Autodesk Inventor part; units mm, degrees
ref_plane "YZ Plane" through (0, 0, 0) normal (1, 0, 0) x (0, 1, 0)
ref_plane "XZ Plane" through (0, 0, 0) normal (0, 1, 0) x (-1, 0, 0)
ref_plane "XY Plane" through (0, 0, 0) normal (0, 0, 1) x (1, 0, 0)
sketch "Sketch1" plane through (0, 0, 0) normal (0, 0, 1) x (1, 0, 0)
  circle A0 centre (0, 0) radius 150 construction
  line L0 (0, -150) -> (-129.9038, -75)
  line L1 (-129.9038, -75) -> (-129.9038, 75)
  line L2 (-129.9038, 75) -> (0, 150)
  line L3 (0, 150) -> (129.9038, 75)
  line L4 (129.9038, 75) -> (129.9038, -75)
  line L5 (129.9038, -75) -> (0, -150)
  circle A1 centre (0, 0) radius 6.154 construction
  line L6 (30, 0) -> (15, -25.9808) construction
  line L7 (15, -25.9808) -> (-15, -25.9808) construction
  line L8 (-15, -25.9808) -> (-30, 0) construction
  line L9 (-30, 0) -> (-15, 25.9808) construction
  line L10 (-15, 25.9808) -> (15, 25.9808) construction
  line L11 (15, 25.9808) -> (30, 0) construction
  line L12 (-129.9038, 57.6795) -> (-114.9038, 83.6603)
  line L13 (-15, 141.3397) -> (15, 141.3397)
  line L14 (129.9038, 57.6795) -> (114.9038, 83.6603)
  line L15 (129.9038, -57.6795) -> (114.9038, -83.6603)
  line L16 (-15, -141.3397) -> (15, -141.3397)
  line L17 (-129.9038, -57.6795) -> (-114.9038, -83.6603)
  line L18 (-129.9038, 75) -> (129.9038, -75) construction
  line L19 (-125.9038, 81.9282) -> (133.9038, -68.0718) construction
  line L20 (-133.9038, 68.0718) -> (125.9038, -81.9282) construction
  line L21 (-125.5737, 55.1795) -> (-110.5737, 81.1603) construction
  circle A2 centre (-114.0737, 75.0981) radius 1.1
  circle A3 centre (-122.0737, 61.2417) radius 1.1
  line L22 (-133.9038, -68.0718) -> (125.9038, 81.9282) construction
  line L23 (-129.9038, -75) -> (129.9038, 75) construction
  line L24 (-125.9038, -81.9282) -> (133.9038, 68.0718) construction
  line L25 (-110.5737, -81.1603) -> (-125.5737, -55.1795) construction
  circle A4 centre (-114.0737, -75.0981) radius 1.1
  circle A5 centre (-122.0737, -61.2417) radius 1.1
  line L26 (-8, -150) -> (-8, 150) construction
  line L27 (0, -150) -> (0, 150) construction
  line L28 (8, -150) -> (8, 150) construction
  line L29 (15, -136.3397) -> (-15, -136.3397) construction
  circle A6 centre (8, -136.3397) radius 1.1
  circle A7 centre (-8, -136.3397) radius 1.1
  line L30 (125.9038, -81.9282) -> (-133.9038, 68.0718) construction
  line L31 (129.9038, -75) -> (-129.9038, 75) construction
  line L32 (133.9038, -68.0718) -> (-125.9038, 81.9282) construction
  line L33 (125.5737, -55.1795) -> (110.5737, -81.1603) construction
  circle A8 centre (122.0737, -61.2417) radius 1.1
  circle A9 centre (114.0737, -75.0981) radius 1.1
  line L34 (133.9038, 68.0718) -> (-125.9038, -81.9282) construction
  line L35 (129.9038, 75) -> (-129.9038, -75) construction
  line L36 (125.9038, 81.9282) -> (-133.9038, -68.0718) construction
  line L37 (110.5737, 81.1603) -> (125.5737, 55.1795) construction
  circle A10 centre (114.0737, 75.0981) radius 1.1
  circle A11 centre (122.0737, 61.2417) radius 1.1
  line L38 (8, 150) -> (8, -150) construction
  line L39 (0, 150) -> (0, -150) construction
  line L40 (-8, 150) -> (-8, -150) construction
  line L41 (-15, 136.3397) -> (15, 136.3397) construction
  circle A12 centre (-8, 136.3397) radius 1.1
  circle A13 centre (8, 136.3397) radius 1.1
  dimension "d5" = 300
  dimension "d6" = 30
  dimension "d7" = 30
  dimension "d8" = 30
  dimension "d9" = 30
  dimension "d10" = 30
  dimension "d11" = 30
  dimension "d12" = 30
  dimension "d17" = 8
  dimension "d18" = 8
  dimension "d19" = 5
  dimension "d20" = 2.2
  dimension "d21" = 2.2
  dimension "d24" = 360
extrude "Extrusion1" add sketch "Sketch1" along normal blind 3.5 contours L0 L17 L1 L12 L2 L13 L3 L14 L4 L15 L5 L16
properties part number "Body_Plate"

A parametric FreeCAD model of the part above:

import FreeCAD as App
import Part
import Sketcher

V = App.Vector
Q = App.Units.Quantity


def add_polygon(sketch, points):
    """Adds a closed chain of lines whose ends are joined by coincident constraints."""
    first, n = sketch.GeometryCount, len(points)
    for a, b in zip(points, points[1:] + points[:1]):
        sketch.addGeometry(Part.LineSegment(App.Vector(*a, 0), App.Vector(*b, 0)), False)
    for i in range(n):
        sketch.addConstraint(Sketcher.Constraint("Coincident", first + i, 2, first + (i + 1) % n, 1))

doc = App.newDocument("Part")
body = doc.addObject("PartDesign::Body", "Body")

sketch1 = body.newObject("Sketcher::SketchObject", "Sketch")
sketch1.AttachmentSupport = (doc.getObject("XY_Plane"), [""])
sketch1.MapMode = "FlatFace"
add_polygon(sketch1, [(-114.9, -83.7), (-15, -141.3), (15, -141.3), (114.9, -83.7), (129.9, -57.7), (129.9, 57.7), (114.9, 83.7), (15, 141.3), (-15, 141.3), (-114.9, 83.7), (-129.9, 57.7), (-129.9, -57.7)])
sketch1.addGeometry(Part.Circle(V(-114.1, -75.1, 0), V(0, 0, 1), 1.1), False)
sketch1.addGeometry(Part.Circle(V(-8, -136.3, 0), V(0, 0, 1), 1.1), False)
sketch1.addGeometry(Part.Circle(V(-122.1, -61.2, 0), V(0, 0, 1), 1.1), False)
sketch1.addGeometry(Part.Circle(V(8, -136.3, 0), V(0, 0, 1), 1.1), False)
sketch1.addGeometry(Part.Circle(V(114.1, -75.1, 0), V(0, 0, 1), 1.1), False)
sketch1.addGeometry(Part.Circle(V(122.1, -61.2, 0), V(0, 0, 1), 1.1), False)
sketch1.addGeometry(Part.Circle(V(-122.1, 61.2, 0), V(0, 0, 1), 1.1), False)
sketch1.addGeometry(Part.Circle(V(-114.1, 75.1, 0), V(0, 0, 1), 1.1), False)
sketch1.addGeometry(Part.Circle(V(-8, 136.3, 0), V(0, 0, 1), 1.1), False)
sketch1.addGeometry(Part.Circle(V(122.1, 61.2, 0), V(0, 0, 1), 1.1), False)
sketch1.addGeometry(Part.Circle(V(8, 136.3, 0), V(0, 0, 1), 1.1), False)
sketch1.addGeometry(Part.Circle(V(114.1, 75.1, 0), V(0, 0, 1), 1.1), False)
sketch1.addConstraint(Sketcher.Constraint("Horizontal", 1))
sketch1.addConstraint(Sketcher.Constraint("Vertical", 4))
sketch1.addConstraint(Sketcher.Constraint("Horizontal", 7))
sketch1.addConstraint(Sketcher.Constraint("Vertical", 10))
sketch1.addConstraint(Sketcher.Constraint("Equal", 12, 13))
sketch1.addConstraint(Sketcher.Constraint("Equal", 13, 14))
sketch1.addConstraint(Sketcher.Constraint("Equal", 14, 15))
sketch1.addConstraint(Sketcher.Constraint("Equal", 15, 16))
sketch1.addConstraint(Sketcher.Constraint("Equal", 16, 17))
sketch1.addConstraint(Sketcher.Constraint("Equal", 17, 18))
sketch1.addConstraint(Sketcher.Constraint("Equal", 18, 19))
sketch1.addConstraint(Sketcher.Constraint("Equal", 19, 20))
sketch1.addConstraint(Sketcher.Constraint("Equal", 20, 21))
sketch1.addConstraint(Sketcher.Constraint("Equal", 21, 22))
sketch1.addConstraint(Sketcher.Constraint("Equal", 22, 23))
sketch1.addConstraint(Sketcher.Constraint("Symmetric", 17, 3, 18, 3, -1, 1))
sketch1.addConstraint(Sketcher.Constraint("Symmetric", 16, 3, 19, 3, -1, 1))
sketch1.addConstraint(Sketcher.Constraint("Symmetric", 15, 3, 20, 3, -1, 1))
sketch1.addConstraint(Sketcher.Constraint("Symmetric", 14, 3, 21, 3, -1, 1))
sketch1.addConstraint(Sketcher.Constraint("Symmetric", 13, 3, 22, 3, -1, 1))
sketch1.addConstraint(Sketcher.Constraint("Symmetric", 12, 3, 23, 3, -1, 1))
sketch1.addConstraint(Sketcher.Constraint("Symmetric", 0, 2, 6, 2, -1, 1))
sketch1.addConstraint(Sketcher.Constraint("Symmetric", 2, 2, 8, 2, -1, 1))
sketch1.addConstraint(Sketcher.Constraint("Symmetric", 3, 2, 9, 2, -1, 1))
sketch1.addConstraint(Sketcher.Constraint("Symmetric", 5, 2, 11, 2, -1, 1))
sketch1.addConstraint(Sketcher.Constraint("Symmetric", 13, 3, 15, 3, -2))
sketch1.addConstraint(Sketcher.Constraint("Symmetric", 12, 3, 16, 3, -2))
sketch1.addConstraint(Sketcher.Constraint("Symmetric", 14, 3, 17, 3, -2))
sketch1.addConstraint(Sketcher.Constraint("Symmetric", 5, 2, 8, 2, -2))
sketch1.addConstraint(Sketcher.Constraint("Perpendicular", 0, 3))
sketch1.addConstraint(Sketcher.Constraint("Perpendicular", 2, 5))
sketch1.addConstraint(Sketcher.Constraint("Perpendicular", 5, 8))
sketch1.addConstraint(Sketcher.Constraint("Perpendicular", 8, 11))
sketch1.addConstraint(Sketcher.Constraint("Horizontal", 4, 2, 9, 2))
sketch1.addConstraint(Sketcher.Constraint("Diameter", 12, Q("2.2 mm")))
sketch1.addConstraint(Sketcher.Constraint("DistanceX", 1, 1, 1, 2, Q("30 mm")))
sketch1.addConstraint(Sketcher.Constraint("Angle", 0, Q("-30 deg")))
sketch1.addConstraint(Sketcher.Constraint("Distance", 3, Q("30 mm")))
sketch1.addConstraint(Sketcher.Constraint("DistanceX", 13, 3, -1, 1, Q("8 mm")))
sketch1.addConstraint(Sketcher.Constraint("DistanceX", 14, 3, 12, 3, Q("8 mm")))
sketch1.addConstraint(Sketcher.Constraint("DistanceY", 0, 2, 13, 3, Q("5 mm")))
sketch1.addConstraint(Sketcher.Constraint("DistanceY", 4, 1, 4, 2, Q("115.359 mm")))
sketch1.addConstraint(Sketcher.Constraint("DistanceX", 16, 3, 2, 2, Q("0.83 mm")))
sketch1.addConstraint(Sketcher.Constraint("Distance", 0, Q("115.359 mm")))
sketch1.addConstraint(Sketcher.Constraint("DistanceY", 12, 3, -1, 1, Q("75.098 mm")))
sketch1.addConstraint(Sketcher.Constraint("DistanceY", 13, 3, 14, 3, Q("75.098 mm")))
pad1 = body.newObject("PartDesign::Pad", "Pad")
pad1.Profile = sketch1
pad1.Length = 3.5

doc.recompute()
